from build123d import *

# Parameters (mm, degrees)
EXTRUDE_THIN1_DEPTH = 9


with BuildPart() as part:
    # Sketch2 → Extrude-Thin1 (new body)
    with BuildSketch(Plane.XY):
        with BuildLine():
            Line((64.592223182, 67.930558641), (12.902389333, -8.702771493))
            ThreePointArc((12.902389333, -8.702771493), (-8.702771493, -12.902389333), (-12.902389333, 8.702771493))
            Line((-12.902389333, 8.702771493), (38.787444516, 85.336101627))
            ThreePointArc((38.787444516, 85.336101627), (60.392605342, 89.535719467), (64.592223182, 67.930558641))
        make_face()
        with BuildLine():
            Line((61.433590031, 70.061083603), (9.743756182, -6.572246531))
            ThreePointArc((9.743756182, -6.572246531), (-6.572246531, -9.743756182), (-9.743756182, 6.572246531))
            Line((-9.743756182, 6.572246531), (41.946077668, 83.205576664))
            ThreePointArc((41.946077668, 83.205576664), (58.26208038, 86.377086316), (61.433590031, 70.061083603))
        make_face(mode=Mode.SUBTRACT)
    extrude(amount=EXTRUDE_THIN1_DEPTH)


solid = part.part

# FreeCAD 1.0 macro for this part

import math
import FreeCAD as App
import Part
import Sketcher
from FreeCAD import Vector
Q = App.Units.Quantity

doc = App.newDocument("Part")
params = doc.addObject("Spreadsheet::Sheet", "Params")
for row, (alias, value) in enumerate([
    ("pad1_length", "9 mm"),
], start=1):
    params.set(f"A{row}", alias)
    params.set(f"B{row}", "=" + value)
    params.setAlias(f"B{row}", alias)

body = doc.addObject("PartDesign::Body", "Body")

# Sketch on XY plane
sketch1 = body.newObject("Sketcher::SketchObject", "Sketch")
sketch1.AttachmentSupport = (doc.getObject("XY_Plane"), [""])
sketch1.MapMode = "FlatFace"
sketch1.addGeometry(Part.LineSegment(Vector(13, -9, 0), Vector(65, 68, 0)), False)
sketch1.addGeometry(Part.ArcOfCircle(Part.Circle(Vector(52, 77, 0), Vector(0, 0, 1), 16), math.radians(-34), math.radians(146)), False)
sketch1.addGeometry(Part.LineSegment(Vector(39, 85, 0), Vector(-13, 9, 0)), False)
sketch1.addGeometry(Part.ArcOfCircle(Part.Circle(Vector(0, 0, 0), Vector(0, 0, 1), 16), math.radians(146), math.radians(326)), False)
sketch1.addGeometry(Part.LineSegment(Vector(61, 70, 0), Vector(10, -7, 0)), False)
sketch1.addGeometry(Part.ArcOfCircle(Part.Circle(Vector(0, 0, 0), Vector(0, 0, 1), 12), math.radians(146), math.radians(326)), False)
sketch1.addGeometry(Part.LineSegment(Vector(-10, 7, 0), Vector(42, 83, 0)), False)
sketch1.addGeometry(Part.ArcOfCircle(Part.Circle(Vector(52, 77, 0), Vector(0, 0, 1), 12), math.radians(-34), math.radians(146)), False)
sketch1.addConstraint(Sketcher.Constraint("Tangent", 0, 2, 1, 1))
sketch1.addConstraint(Sketcher.Constraint("Tangent", 1, 2, 2, 1))
sketch1.addConstraint(Sketcher.Constraint("Tangent", 2, 2, 3, 1))
sketch1.addConstraint(Sketcher.Constraint("Tangent", 3, 2, 0, 1))
sketch1.addConstraint(Sketcher.Constraint("Tangent", 4, 2, 5, 2))
sketch1.addConstraint(Sketcher.Constraint("Tangent", 5, 1, 6, 1))
sketch1.addConstraint(Sketcher.Constraint("Tangent", 6, 2, 7, 2))
sketch1.addConstraint(Sketcher.Constraint("Tangent", 7, 1, 4, 1))
sketch1.addConstraint(Sketcher.Constraint("Coincident", 3, 3, -1, 1))
sketch1.addConstraint(Sketcher.Constraint("Coincident", 5, 3, -1, 1))
sketch1.addConstraint(Sketcher.Constraint("Coincident", 7, 3, 1, 3))
sketch1.addConstraint(Sketcher.Constraint("Equal", 1, 3))
sketch1.addConstraint(Sketcher.Constraint("Equal", 5, 7))
sketch1.addConstraint(Sketcher.Constraint("Angle", 0, Q("56 deg")))
sketch1.addConstraint(Sketcher.Constraint("Radius", 1, Q("15.563094 mm")))
sketch1.addConstraint(Sketcher.Constraint("Radius", 5, Q("11.753094 mm")))
sketch1.addConstraint(Sketcher.Constraint("Distance", 0, Q("92.436498 mm")))
pad1 = body.newObject("PartDesign::Pad", "Pad")
pad1.Profile = sketch1
pad1.setExpression("Length", "Params.pad1_length")

doc.recompute()
